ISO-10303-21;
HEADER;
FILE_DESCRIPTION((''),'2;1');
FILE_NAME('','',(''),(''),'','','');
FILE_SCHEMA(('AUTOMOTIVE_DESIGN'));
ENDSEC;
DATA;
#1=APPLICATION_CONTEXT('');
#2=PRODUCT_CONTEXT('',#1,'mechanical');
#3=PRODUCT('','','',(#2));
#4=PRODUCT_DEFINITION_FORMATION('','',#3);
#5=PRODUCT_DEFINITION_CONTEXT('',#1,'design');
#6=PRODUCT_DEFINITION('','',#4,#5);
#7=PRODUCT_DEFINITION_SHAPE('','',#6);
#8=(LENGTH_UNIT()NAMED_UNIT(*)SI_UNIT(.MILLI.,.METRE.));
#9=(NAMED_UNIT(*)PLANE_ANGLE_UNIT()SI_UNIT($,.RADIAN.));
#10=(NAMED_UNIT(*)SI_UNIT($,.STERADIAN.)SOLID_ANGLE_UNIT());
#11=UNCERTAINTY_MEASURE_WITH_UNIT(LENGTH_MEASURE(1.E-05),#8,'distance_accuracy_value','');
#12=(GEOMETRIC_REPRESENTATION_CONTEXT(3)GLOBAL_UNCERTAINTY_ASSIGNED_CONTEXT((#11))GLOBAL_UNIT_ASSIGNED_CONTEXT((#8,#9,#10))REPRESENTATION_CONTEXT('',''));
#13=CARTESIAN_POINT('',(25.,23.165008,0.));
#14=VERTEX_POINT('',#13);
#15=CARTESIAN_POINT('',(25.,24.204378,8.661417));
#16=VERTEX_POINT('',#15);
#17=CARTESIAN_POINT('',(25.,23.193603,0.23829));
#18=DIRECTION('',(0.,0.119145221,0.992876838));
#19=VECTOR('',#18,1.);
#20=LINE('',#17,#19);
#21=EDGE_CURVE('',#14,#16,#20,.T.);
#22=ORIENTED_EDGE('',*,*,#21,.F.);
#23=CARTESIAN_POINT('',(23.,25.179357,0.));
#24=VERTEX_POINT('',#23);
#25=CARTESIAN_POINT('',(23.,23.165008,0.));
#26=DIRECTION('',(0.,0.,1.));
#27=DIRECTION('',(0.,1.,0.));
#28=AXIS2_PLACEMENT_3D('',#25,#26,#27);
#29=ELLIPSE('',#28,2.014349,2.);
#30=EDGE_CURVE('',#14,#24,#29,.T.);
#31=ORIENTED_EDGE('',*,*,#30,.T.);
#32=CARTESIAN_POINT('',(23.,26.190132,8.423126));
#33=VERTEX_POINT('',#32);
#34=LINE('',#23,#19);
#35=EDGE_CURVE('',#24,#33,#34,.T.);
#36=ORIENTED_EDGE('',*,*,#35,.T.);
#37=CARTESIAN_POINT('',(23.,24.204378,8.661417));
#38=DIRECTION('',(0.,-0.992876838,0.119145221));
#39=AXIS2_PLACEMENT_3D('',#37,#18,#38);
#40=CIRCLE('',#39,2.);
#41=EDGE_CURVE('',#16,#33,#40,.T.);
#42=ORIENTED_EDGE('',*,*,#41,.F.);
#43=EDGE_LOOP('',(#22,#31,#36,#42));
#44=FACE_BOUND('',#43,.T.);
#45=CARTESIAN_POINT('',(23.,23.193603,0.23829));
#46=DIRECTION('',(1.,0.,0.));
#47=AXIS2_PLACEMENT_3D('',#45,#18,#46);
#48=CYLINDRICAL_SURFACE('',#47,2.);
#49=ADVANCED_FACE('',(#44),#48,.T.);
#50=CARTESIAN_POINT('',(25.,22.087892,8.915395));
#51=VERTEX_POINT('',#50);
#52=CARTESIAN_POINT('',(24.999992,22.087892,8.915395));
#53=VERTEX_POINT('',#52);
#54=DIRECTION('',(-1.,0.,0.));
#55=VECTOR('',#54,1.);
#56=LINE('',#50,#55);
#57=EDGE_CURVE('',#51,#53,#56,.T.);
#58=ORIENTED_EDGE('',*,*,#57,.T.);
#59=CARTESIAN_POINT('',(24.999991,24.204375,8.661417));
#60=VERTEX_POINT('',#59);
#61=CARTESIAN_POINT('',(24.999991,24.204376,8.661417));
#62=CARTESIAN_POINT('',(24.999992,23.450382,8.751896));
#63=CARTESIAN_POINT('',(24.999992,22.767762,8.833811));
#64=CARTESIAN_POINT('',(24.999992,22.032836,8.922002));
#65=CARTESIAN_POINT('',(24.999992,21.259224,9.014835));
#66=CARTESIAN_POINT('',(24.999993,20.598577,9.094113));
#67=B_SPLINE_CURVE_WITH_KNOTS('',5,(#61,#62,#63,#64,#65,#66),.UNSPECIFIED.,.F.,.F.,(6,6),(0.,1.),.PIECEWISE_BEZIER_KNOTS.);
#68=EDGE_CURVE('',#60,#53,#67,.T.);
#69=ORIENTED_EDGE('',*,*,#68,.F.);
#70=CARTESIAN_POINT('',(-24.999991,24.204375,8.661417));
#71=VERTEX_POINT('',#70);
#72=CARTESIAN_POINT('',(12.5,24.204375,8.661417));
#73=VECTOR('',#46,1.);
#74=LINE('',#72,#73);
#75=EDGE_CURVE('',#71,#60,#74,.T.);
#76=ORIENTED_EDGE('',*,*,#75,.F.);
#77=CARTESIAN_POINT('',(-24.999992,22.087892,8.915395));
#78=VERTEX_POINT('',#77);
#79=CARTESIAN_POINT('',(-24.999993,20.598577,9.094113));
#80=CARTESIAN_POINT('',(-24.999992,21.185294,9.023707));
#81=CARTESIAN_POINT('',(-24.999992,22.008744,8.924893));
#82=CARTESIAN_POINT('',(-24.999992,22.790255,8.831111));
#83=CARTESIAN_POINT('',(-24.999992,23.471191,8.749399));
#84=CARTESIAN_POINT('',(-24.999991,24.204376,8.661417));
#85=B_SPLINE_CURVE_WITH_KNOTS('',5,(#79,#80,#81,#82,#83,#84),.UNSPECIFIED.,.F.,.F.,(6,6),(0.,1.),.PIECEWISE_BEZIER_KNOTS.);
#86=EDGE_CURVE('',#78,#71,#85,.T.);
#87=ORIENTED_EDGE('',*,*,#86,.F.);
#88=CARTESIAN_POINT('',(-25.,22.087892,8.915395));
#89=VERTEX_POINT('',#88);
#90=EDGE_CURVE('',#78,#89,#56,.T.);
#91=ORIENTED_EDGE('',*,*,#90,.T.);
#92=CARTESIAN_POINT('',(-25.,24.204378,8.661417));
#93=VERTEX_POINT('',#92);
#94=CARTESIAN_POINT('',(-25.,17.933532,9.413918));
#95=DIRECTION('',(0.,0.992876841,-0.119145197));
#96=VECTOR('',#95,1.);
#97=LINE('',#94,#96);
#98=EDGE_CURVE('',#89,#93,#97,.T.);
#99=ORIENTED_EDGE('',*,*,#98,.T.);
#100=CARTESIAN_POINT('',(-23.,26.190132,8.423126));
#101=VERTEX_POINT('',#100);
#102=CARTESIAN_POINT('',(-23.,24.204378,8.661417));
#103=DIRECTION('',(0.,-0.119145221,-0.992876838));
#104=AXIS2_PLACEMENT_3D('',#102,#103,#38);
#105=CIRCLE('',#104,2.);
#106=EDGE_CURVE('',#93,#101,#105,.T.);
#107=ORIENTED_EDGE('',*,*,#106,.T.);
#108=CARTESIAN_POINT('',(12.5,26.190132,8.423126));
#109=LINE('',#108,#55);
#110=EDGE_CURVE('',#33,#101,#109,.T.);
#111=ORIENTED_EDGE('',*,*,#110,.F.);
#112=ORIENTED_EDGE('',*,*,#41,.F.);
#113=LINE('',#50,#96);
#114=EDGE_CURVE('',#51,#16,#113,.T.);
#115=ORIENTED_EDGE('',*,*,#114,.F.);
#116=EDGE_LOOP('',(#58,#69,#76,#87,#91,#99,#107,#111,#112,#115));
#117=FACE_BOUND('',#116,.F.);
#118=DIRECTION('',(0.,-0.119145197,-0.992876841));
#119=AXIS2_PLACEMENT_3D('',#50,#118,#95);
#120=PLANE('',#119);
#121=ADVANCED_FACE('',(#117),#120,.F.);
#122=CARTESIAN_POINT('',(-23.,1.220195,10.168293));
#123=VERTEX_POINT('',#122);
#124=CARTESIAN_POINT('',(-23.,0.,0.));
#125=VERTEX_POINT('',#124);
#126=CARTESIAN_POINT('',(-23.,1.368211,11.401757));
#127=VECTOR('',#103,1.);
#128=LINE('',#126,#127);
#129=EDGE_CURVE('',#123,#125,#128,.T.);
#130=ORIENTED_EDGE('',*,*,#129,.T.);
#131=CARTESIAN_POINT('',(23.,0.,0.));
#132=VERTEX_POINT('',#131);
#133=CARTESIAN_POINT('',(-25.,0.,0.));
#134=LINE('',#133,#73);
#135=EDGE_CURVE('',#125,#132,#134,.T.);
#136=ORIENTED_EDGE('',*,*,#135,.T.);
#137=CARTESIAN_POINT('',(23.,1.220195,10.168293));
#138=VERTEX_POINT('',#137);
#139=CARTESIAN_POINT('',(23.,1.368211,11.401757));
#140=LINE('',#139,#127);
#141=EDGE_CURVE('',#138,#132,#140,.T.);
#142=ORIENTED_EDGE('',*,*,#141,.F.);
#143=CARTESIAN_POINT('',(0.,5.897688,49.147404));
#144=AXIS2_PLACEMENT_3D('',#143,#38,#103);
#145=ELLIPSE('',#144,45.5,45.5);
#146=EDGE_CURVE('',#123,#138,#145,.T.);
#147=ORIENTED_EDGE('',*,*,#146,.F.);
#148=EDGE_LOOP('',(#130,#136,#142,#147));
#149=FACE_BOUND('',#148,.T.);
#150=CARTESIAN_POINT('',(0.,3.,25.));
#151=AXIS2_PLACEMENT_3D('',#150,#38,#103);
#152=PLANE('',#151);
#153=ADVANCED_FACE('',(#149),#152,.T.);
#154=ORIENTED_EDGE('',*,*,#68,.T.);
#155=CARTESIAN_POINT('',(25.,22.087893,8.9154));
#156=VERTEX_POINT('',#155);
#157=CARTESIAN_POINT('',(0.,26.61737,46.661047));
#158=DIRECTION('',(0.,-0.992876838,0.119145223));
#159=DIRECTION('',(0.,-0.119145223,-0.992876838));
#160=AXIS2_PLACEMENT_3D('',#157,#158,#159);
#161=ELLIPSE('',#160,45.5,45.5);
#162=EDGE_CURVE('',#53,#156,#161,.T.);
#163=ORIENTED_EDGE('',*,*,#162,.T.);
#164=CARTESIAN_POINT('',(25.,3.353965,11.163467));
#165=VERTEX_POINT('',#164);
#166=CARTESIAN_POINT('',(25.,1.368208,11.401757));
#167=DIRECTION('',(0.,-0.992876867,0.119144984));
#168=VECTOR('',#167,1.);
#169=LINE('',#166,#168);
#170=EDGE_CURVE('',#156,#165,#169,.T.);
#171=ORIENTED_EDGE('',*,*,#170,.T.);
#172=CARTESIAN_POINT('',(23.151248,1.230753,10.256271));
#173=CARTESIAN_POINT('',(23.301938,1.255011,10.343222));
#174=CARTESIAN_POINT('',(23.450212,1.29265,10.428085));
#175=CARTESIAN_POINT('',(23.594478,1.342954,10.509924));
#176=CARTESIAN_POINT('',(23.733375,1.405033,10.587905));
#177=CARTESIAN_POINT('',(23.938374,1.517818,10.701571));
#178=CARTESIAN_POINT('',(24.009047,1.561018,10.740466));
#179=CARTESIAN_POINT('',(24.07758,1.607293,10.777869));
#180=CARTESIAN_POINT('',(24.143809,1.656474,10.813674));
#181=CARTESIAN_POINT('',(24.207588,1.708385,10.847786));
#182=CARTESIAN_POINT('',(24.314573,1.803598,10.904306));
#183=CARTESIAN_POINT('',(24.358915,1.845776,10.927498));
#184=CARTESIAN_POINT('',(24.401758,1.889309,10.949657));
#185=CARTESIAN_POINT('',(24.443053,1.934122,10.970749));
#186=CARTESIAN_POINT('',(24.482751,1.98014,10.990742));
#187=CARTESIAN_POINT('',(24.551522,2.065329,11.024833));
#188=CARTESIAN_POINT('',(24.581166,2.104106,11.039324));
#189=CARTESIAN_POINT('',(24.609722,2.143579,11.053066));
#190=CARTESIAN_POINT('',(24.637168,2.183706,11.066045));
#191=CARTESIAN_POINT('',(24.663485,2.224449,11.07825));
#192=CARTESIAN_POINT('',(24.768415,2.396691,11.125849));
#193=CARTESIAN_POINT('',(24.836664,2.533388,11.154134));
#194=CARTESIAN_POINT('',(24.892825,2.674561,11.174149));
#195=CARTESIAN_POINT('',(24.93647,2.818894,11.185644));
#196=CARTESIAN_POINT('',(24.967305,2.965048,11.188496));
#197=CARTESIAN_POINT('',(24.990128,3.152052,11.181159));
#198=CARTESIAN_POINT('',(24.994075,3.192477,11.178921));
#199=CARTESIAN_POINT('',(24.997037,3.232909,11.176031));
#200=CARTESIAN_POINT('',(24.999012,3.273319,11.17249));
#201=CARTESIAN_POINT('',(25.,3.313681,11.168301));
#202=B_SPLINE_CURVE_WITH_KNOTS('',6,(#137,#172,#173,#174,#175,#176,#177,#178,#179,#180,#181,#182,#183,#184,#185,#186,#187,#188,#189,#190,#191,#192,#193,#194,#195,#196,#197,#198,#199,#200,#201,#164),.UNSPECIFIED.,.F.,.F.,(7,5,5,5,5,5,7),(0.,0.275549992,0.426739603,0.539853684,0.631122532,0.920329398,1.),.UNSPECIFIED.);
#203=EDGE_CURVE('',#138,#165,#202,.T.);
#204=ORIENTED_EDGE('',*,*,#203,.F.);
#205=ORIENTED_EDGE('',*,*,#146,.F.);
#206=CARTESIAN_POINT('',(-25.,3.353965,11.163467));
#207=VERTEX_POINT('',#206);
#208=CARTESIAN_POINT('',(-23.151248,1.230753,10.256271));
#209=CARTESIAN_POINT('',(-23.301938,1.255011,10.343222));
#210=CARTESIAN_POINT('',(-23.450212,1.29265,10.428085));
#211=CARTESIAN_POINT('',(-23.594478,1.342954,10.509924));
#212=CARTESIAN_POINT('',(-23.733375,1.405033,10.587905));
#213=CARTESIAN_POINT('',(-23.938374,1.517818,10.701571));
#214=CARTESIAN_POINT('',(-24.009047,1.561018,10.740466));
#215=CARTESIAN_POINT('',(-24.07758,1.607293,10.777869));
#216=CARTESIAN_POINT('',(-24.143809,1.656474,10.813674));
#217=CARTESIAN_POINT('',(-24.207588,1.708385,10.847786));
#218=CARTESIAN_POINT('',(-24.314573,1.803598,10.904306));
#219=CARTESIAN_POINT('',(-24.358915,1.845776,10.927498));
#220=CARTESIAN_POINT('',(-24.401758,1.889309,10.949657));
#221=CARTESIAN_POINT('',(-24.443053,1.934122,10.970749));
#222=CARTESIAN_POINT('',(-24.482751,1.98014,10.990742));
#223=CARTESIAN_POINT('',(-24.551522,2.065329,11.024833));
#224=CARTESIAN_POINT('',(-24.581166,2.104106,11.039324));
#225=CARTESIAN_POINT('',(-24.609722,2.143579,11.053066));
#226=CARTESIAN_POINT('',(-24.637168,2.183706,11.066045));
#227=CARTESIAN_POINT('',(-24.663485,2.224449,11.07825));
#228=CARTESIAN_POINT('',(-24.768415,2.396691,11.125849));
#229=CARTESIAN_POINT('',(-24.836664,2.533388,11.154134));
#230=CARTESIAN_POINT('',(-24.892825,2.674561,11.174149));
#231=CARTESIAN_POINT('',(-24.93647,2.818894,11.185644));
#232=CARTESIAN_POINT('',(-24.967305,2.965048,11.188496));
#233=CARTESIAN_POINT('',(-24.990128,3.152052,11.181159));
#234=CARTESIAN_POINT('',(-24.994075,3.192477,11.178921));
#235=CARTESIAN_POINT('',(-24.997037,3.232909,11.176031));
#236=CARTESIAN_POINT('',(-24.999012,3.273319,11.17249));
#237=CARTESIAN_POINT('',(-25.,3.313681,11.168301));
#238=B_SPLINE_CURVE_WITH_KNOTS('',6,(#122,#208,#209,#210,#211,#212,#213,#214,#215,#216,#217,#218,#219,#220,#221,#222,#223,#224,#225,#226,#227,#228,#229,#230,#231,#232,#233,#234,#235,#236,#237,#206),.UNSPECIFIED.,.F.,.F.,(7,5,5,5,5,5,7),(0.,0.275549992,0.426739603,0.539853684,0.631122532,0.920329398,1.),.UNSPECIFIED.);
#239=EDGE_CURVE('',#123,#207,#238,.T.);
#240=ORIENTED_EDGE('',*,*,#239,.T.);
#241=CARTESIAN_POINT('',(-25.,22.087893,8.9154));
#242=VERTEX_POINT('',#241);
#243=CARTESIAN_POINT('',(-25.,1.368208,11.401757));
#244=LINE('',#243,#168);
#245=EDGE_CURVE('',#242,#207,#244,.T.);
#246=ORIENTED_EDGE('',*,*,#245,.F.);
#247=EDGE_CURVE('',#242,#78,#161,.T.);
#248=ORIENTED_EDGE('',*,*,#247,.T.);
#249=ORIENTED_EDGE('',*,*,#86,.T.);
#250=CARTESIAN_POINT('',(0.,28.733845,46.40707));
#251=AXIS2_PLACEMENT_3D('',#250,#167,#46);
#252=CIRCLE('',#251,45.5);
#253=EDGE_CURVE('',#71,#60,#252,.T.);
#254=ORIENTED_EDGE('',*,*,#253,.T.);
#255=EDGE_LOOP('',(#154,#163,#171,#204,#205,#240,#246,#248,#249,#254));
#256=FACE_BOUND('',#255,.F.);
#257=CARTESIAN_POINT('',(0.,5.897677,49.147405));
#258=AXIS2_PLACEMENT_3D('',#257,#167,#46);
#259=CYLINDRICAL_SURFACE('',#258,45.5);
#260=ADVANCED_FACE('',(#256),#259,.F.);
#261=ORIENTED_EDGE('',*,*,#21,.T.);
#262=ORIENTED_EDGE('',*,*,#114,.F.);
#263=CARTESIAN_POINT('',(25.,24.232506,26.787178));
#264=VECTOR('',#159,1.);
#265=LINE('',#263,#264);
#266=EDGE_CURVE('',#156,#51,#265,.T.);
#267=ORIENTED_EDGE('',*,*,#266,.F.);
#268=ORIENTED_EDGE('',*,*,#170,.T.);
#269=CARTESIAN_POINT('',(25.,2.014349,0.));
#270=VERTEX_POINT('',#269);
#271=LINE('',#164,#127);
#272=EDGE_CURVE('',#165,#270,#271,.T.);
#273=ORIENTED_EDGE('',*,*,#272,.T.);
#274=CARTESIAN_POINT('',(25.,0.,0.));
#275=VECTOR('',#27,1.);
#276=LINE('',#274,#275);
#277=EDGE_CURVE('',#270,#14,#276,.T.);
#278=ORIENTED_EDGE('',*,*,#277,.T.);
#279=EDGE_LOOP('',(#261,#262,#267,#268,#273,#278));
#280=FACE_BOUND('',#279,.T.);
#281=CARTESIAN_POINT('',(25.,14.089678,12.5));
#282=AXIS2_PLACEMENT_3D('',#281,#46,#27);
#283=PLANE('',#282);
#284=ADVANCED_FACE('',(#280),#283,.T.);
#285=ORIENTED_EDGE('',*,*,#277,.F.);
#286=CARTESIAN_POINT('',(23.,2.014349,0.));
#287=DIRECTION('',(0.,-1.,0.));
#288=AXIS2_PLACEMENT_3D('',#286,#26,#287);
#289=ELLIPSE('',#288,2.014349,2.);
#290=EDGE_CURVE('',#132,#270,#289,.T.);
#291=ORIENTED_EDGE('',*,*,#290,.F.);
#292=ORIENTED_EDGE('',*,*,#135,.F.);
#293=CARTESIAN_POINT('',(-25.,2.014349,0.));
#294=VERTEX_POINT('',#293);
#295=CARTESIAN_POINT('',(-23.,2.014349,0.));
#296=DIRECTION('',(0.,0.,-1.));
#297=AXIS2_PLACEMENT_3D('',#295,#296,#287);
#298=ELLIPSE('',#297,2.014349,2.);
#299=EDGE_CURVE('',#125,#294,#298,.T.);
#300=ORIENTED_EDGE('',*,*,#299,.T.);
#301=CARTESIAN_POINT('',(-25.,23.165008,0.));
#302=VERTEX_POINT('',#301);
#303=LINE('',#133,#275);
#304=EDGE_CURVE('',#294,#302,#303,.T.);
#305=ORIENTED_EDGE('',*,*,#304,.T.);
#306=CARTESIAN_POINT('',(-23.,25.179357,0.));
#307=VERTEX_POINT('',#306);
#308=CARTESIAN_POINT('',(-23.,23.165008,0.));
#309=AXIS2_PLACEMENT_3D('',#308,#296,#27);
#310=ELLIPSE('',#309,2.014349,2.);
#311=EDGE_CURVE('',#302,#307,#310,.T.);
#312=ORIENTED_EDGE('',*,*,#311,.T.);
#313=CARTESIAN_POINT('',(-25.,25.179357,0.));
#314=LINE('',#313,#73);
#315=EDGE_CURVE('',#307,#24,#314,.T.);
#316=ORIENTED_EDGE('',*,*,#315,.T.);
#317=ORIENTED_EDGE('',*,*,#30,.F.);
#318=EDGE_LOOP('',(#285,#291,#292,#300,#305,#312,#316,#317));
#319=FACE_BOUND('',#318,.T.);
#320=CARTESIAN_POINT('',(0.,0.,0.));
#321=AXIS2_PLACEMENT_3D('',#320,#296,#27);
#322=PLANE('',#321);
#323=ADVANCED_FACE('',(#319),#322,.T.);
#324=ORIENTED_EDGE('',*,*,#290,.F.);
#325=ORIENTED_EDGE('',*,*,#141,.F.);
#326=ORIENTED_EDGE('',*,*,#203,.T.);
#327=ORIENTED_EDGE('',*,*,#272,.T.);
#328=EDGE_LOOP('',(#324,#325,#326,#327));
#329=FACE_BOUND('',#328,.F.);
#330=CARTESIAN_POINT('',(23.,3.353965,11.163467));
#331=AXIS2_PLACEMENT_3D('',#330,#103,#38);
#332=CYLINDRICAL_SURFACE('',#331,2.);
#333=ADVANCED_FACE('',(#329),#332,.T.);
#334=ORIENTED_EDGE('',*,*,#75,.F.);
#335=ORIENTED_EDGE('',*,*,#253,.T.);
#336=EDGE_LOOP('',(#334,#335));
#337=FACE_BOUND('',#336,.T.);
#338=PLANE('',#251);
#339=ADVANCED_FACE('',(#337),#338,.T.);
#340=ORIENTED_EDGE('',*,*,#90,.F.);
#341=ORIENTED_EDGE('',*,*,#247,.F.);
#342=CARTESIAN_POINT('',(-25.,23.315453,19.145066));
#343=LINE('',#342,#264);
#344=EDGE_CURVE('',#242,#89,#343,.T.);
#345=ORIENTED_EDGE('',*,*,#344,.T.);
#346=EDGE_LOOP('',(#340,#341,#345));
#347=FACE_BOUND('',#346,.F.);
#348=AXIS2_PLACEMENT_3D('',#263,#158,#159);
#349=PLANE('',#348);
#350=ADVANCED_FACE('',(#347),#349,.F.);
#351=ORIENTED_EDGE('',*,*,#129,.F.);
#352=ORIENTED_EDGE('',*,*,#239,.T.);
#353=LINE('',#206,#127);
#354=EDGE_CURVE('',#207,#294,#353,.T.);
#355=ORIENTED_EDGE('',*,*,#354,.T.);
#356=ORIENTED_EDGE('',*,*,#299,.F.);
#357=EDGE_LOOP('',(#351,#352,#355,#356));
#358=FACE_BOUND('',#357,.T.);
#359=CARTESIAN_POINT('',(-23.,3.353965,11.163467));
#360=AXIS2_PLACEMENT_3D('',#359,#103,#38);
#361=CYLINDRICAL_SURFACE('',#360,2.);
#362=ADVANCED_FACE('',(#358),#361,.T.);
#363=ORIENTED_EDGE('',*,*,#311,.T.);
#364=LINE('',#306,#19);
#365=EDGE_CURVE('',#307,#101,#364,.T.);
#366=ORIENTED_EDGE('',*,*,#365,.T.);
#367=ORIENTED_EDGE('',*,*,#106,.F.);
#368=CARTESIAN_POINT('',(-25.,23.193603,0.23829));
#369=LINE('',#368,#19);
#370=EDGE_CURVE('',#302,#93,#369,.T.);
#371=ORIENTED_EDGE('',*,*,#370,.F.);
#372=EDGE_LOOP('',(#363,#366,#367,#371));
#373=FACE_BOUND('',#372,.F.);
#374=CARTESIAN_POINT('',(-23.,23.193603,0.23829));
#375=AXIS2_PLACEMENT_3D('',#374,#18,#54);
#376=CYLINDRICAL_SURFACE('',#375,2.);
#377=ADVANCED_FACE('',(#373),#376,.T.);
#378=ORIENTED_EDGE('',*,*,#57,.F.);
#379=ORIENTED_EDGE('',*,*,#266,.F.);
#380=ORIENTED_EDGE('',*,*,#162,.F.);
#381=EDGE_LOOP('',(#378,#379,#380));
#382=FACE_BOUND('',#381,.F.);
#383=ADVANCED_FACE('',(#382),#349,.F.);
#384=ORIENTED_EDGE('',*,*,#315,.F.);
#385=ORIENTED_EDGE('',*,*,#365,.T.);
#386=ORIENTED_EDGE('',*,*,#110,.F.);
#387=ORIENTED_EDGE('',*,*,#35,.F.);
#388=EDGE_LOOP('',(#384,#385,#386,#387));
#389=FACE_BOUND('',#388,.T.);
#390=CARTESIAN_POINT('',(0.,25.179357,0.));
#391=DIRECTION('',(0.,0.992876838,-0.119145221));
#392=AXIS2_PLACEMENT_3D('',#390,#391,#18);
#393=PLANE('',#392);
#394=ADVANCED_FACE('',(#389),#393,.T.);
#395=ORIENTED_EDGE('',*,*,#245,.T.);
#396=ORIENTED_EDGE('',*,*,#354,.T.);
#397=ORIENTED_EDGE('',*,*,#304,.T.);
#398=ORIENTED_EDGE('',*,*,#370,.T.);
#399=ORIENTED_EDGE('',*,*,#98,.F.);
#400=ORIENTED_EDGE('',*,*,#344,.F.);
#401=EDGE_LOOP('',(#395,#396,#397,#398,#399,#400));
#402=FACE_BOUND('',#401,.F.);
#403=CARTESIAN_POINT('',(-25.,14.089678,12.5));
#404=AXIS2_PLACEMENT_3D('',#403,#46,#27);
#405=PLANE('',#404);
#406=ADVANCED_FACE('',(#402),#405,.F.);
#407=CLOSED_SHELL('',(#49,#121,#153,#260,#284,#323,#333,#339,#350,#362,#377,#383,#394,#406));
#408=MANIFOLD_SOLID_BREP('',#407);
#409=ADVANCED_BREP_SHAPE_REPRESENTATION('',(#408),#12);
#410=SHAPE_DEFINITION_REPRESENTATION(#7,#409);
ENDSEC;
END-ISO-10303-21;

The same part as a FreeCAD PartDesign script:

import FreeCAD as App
import Part
import Sketcher

V = App.Vector


def edges_at(feature, points):
    """Names of the edges that pass closest to the given points."""
    edges = feature.Shape.Edges
    near = lambda p: min(range(len(edges)), key=lambda i: edges[i].distToShape(Part.Vertex(*p))[0])
    return sorted({f"Edge{near(p) + 1}" for p in points})


def add_polygon(sketch, points):
    """Adds a closed chain of lines whose ends are joined by coincident constraints."""
    first, n = sketch.GeometryCount, len(points)
    for a, b in zip(points, points[1:] + points[:1]):
        sketch.addGeometry(Part.LineSegment(App.Vector(*a, 0), App.Vector(*b, 0)), False)
    for i in range(n):
        sketch.addConstraint(Sketcher.Constraint("Coincident", first + i, 2, first + (i + 1) % n, 1))

doc = App.newDocument("Part")
params = doc.addObject("Spreadsheet::Sheet", "Params")
for row, (alias, value) in enumerate([
    ("pad1_length", "25 mm"),
    ("pad1_length2", "25 mm"),
    ("sketch2_diameter", "91 mm"),
    ("pocket1_length", "23 mm"),
    ("sketch3_length", "15 mm"),
    ("sketch3_length2", "18 mm"),
    ("fillet_radius", "2 mm"),
], start=1):
    params.set(f"A{row}", alias)
    params.set(f"B{row}", "=" + value)
    params.setAlias(f"B{row}", alias)

body = doc.addObject("PartDesign::Body", "Body")

# Sketch on YZ plane
sketch1 = body.newObject("Sketcher::SketchObject", "Sketch")
sketch1.AttachmentSupport = (doc.getObject("YZ_Plane"), [""])
sketch1.MapMode = "FlatFace"
add_polygon(sketch1, [(3, 25), (0, 0), (25.179357, 0), (28.179357, 25)])  # lines 0-3
sketch1.addConstraint(Sketcher.Constraint("Horizontal", 1))
sketch1.addConstraint(Sketcher.Constraint("Horizontal", 3))
sketch1.addConstraint(Sketcher.Constraint("Coincident", 0, 2, -1, 1))
sketch1.addConstraint(Sketcher.Constraint("Parallel", 0, 2))
sketch1.addConstraint(Sketcher.Constraint("DistanceY", -1, 1, 2, 2, 25.0))
sketch1.addConstraint(Sketcher.Constraint("DistanceX", -1, 1, 3, 2, 3.0))
sketch1.addConstraint(Sketcher.Constraint("DistanceX", 1, 1, 1, 2, 25.179357))
pad1 = body.newObject("PartDesign::Pad", "Pad")
pad1.Profile = sketch1
pad1.Type = "TwoLengths"
pad1.setExpression("Length", "Params.pad1_length")
pad1.setExpression("Length2", "Params.pad1_length2")

# Sketch on an angled plane
sketch2 = body.newObject("Sketcher::SketchObject", "Sketch001")
sketch2.Placement = App.Placement(V(0, 0, 0), App.Rotation(V(1, 0, 0), V(0, 0.119144984, 0.992876867), V(0, -0.992876867, 0.119144984), "ZXY"))
sketch2.addGeometry(Part.Circle(V(0, 49.5, 0), V(0, 0, 1), 45.5), False)
sketch2.addConstraint(Sketcher.Constraint("PointOnObject", 0, 3, -2))
sketch2.addConstraint(Sketcher.Constraint("Diameter", 0, 91.0))
sketch2.addConstraint(Sketcher.Constraint("DistanceY", -1, 1, 0, 3, 49.5))
sketch2.setExpression("Constraints[1]", "Params.sketch2_diameter")
pocket1 = body.newObject("PartDesign::Pocket", "Pocket")
pocket1.Profile = sketch2
pocket1.setExpression("Length", "Params.pocket1_length")

# Sketch on YZ plane
sketch3 = body.newObject("Sketcher::SketchObject", "Sketch002")
sketch3.AttachmentSupport = (doc.getObject("YZ_Plane"), [""])
sketch3.MapMode = "FlatFace"
sketch3.AttachmentOffset = App.Placement(V(0, 0, 25), App.Rotation())
add_polygon(sketch3, [(39.125659, 25), (24.232506, 26.787178), (22.087892, 8.915395), (36.981045, 7.128217)])  # lines 0-3
sketch3.addConstraint(Sketcher.Constraint("Perpendicular", 0, 1))
sketch3.addConstraint(Sketcher.Constraint("Perpendicular", 1, 2))
sketch3.addConstraint(Sketcher.Constraint("Perpendicular", 2, 3))
sketch3.addConstraint(Sketcher.Constraint("Distance", 0, 15.0))
sketch3.addConstraint(Sketcher.Constraint("Distance", 1, 18.0))
sketch3.addConstraint(Sketcher.Constraint("DistanceY", -1, 1, 3, 2, 25.0))
sketch3.addConstraint(Sketcher.Constraint("DistanceY", -1, 1, 0, 2, 26.787178))
sketch3.addConstraint(Sketcher.Constraint("DistanceX", -1, 1, 1, 2, 22.087892))
sketch3.setExpression("Constraints[7]", "Params.sketch3_length")
sketch3.setExpression("Constraints[8]", "Params.sketch3_length2")
pocket2 = body.newObject("PartDesign::Pocket", "Pocket001")
pocket2.Profile = sketch3
pocket2.Type = "ThroughAll"
doc.recompute()

fillet = body.newObject("PartDesign::Fillet", "Fillet")
fillet.Base = (pocket2, edges_at(pocket2, [
    (-25, 0.684, 5.701),
    (25, 0.684, 5.701),
    (25, 25.685, 4.212),
    (-25, 25.685, 4.212),
]))
fillet.setExpression("Radius", "Params.fillet_radius")

doc.recompute()
